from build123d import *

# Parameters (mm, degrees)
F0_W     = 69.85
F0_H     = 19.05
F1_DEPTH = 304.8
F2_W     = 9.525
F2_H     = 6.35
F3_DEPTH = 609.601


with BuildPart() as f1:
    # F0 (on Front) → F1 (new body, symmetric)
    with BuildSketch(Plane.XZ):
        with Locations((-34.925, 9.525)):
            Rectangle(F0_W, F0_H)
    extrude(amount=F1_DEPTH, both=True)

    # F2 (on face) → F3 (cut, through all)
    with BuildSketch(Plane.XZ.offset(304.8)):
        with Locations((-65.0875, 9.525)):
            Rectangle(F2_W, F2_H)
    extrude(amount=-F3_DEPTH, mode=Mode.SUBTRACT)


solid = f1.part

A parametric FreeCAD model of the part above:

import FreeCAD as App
import Part
import Sketcher
Q = App.Units.Quantity


def add_polygon(sketch, points):
    """Adds a closed chain of lines whose ends are joined by coincident constraints."""
    first, n = sketch.GeometryCount, len(points)
    for a, b in zip(points, points[1:] + points[:1]):
        sketch.addGeometry(Part.LineSegment(App.Vector(*a, 0), App.Vector(*b, 0)), False)
    for i in range(n):
        sketch.addConstraint(Sketcher.Constraint("Coincident", first + i, 2, first + (i + 1) % n, 1))

doc = App.newDocument("Part")
body = doc.addObject("PartDesign::Body", "Body")

# Sketch on XZ plane
sketch1 = body.newObject("Sketcher::SketchObject", "Sketch")
sketch1.AttachmentSupport = (doc.getObject("XZ_Plane"), [""])
sketch1.MapMode = "FlatFace"
add_polygon(sketch1, [(-69.85, 19.05), (-69.85, 0), (0, 0), (0, 19.05)])  # lines 0-3
sketch1.addConstraint(Sketcher.Constraint("Vertical", 0))
sketch1.addConstraint(Sketcher.Constraint("Horizontal", 1))
sketch1.addConstraint(Sketcher.Constraint("Vertical", 2))
sketch1.addConstraint(Sketcher.Constraint("Horizontal", 3))
sketch1.addConstraint(Sketcher.Constraint("Coincident", 1, 2, -1, 1))
sketch1.addConstraint(Sketcher.Constraint("DistanceX", 1, 1, 1, 2, Q("2.75 in")))
sketch1.addConstraint(Sketcher.Constraint("DistanceY", 0, 2, 0, 1, Q("0.75 in")))
pad1 = body.newObject("PartDesign::Pad", "Pad")
pad1.Profile = sketch1
pad1.Length = Q("24 in")
pad1.Midplane = True

# Sketch on XZ plane
sketch2 = body.newObject("Sketcher::SketchObject", "Sketch001")
sketch2.AttachmentSupport = (doc.getObject("XZ_Plane"), [""])
sketch2.MapMode = "FlatFace"
sketch2.AttachmentOffset = App.Placement(App.Vector(0, 0, 12 * 25.4), App.Rotation())
add_polygon(sketch2, [(-69.85, 12.7), (-69.85, 6.35), (-60.325, 6.35), (-60.325, 12.7)])  # lines 0-3
sketch2.addConstraint(Sketcher.Constraint("Vertical", 0))
sketch2.addConstraint(Sketcher.Constraint("Horizontal", 1))
sketch2.addConstraint(Sketcher.Constraint("Vertical", 2))
sketch2.addConstraint(Sketcher.Constraint("Horizontal", 3))
sketch2.addConstraint(Sketcher.Constraint("DistanceY", 0, 2, 0, 1, Q("0.25 in")))
sketch2.addConstraint(Sketcher.Constraint("DistanceY", -1, 1, 2, 2, Q("0.5 in")))
sketch2.addConstraint(Sketcher.Constraint("DistanceX", 1, 1, 1, 2, Q("0.375 in")))
sketch2.addConstraint(Sketcher.Constraint("DistanceX", 0, 2, -1, 1, Q("2.75 in")))
pocket1 = body.newObject("PartDesign::Pocket", "Pocket")
pocket1.Profile = sketch2
pocket1.Type = "ThroughAll"

doc.recompute()
